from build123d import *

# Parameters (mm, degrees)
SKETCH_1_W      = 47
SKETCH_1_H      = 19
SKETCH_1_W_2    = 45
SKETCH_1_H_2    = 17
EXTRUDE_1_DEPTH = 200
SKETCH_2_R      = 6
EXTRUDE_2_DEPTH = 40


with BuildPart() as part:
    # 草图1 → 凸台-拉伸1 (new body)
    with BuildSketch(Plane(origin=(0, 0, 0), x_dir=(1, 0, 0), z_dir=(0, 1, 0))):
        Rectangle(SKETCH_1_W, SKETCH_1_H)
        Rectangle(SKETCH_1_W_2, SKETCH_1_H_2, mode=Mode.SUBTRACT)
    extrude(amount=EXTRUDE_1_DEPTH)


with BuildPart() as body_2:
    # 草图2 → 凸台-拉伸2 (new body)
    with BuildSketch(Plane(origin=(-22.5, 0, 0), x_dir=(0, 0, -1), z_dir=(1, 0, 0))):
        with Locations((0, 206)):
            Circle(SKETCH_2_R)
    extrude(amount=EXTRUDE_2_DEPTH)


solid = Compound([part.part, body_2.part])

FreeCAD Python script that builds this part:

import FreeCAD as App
import Part
import Sketcher
from FreeCAD import Vector


def add_polygon(sketch, points):
    """Adds a closed chain of lines whose ends are joined by coincident constraints."""
    first, n = sketch.GeometryCount, len(points)
    for a, b in zip(points, points[1:] + points[:1]):
        sketch.addGeometry(Part.LineSegment(App.Vector(*a, 0), App.Vector(*b, 0)), False)
    for i in range(n):
        sketch.addConstraint(Sketcher.Constraint("Coincident", first + i, 2, first + (i + 1) % n, 1))

doc = App.newDocument("Part")
body = doc.addObject("PartDesign::Body", "Body")

# Sketch on XZ plane
sketch1 = body.newObject("Sketcher::SketchObject", "Sketch")
sketch1.AttachmentSupport = (doc.getObject("XZ_Plane"), [""])
sketch1.MapMode = "FlatFace"
add_polygon(sketch1, [(-24, -10), (-24, 10), (24, 10), (24, -10)])  # lines 0-3
add_polygon(sketch1, [(22, 8), (-22, 8), (-22, -8), (22, -8)])  # lines 4-7
sketch1.addConstraint(Sketcher.Constraint("Vertical", 0))
sketch1.addConstraint(Sketcher.Constraint("Horizontal", 1))
sketch1.addConstraint(Sketcher.Constraint("Vertical", 2))
sketch1.addConstraint(Sketcher.Constraint("Horizontal", 3))
sketch1.addConstraint(Sketcher.Constraint("Horizontal", 4))
sketch1.addConstraint(Sketcher.Constraint("Vertical", 5))
sketch1.addConstraint(Sketcher.Constraint("Horizontal", 6))
sketch1.addConstraint(Sketcher.Constraint("Vertical", 7))
sketch1.addConstraint(Sketcher.Constraint("Symmetric", 0, 2, 2, 2, -1, 1))
sketch1.addConstraint(Sketcher.Constraint("Symmetric", 4, 2, 6, 2, -1, 1))
sketch1.addConstraint(Sketcher.Constraint("DistanceX", 1, 1, 1, 2, 47.0))
sketch1.addConstraint(Sketcher.Constraint("DistanceX", 4, 2, 4, 1, 45.0))
sketch1.addConstraint(Sketcher.Constraint("DistanceY", 0, 1, 0, 2, 19.0))
sketch1.addConstraint(Sketcher.Constraint("DistanceY", 5, 2, 5, 1, 17.0))
pad1 = body.newObject("PartDesign::Pad", "Pad")
pad1.Profile = sketch1
pad1.Length = 200
pad1.Reversed = True
body2 = doc.addObject("PartDesign::Body", "Body001")

# Sketch on YZ plane
sketch2 = body2.newObject("Sketcher::SketchObject", "Sketch001")
sketch2.AttachmentSupport = (doc.getObject("YZ_Plane001"), [""])
sketch2.MapMode = "FlatFace"
sketch2.AttachmentOffset = App.Placement(Vector(0, 0, -22.5), App.Rotation())
sketch2.addGeometry(Part.Circle(Vector(206, 0, 0), Vector(0, 0, 1), 6), False)
sketch2.addConstraint(Sketcher.Constraint("PointOnObject", 0, 3, -1))
sketch2.addConstraint(Sketcher.Constraint("Diameter", 0, 12.0))
sketch2.addConstraint(Sketcher.Constraint("DistanceX", -1, 1, 0, 3, 206.0))
pad2 = body2.newObject("PartDesign::Pad", "Pad001")
pad2.Profile = sketch2
pad2.Length = 40

doc.recompute()
